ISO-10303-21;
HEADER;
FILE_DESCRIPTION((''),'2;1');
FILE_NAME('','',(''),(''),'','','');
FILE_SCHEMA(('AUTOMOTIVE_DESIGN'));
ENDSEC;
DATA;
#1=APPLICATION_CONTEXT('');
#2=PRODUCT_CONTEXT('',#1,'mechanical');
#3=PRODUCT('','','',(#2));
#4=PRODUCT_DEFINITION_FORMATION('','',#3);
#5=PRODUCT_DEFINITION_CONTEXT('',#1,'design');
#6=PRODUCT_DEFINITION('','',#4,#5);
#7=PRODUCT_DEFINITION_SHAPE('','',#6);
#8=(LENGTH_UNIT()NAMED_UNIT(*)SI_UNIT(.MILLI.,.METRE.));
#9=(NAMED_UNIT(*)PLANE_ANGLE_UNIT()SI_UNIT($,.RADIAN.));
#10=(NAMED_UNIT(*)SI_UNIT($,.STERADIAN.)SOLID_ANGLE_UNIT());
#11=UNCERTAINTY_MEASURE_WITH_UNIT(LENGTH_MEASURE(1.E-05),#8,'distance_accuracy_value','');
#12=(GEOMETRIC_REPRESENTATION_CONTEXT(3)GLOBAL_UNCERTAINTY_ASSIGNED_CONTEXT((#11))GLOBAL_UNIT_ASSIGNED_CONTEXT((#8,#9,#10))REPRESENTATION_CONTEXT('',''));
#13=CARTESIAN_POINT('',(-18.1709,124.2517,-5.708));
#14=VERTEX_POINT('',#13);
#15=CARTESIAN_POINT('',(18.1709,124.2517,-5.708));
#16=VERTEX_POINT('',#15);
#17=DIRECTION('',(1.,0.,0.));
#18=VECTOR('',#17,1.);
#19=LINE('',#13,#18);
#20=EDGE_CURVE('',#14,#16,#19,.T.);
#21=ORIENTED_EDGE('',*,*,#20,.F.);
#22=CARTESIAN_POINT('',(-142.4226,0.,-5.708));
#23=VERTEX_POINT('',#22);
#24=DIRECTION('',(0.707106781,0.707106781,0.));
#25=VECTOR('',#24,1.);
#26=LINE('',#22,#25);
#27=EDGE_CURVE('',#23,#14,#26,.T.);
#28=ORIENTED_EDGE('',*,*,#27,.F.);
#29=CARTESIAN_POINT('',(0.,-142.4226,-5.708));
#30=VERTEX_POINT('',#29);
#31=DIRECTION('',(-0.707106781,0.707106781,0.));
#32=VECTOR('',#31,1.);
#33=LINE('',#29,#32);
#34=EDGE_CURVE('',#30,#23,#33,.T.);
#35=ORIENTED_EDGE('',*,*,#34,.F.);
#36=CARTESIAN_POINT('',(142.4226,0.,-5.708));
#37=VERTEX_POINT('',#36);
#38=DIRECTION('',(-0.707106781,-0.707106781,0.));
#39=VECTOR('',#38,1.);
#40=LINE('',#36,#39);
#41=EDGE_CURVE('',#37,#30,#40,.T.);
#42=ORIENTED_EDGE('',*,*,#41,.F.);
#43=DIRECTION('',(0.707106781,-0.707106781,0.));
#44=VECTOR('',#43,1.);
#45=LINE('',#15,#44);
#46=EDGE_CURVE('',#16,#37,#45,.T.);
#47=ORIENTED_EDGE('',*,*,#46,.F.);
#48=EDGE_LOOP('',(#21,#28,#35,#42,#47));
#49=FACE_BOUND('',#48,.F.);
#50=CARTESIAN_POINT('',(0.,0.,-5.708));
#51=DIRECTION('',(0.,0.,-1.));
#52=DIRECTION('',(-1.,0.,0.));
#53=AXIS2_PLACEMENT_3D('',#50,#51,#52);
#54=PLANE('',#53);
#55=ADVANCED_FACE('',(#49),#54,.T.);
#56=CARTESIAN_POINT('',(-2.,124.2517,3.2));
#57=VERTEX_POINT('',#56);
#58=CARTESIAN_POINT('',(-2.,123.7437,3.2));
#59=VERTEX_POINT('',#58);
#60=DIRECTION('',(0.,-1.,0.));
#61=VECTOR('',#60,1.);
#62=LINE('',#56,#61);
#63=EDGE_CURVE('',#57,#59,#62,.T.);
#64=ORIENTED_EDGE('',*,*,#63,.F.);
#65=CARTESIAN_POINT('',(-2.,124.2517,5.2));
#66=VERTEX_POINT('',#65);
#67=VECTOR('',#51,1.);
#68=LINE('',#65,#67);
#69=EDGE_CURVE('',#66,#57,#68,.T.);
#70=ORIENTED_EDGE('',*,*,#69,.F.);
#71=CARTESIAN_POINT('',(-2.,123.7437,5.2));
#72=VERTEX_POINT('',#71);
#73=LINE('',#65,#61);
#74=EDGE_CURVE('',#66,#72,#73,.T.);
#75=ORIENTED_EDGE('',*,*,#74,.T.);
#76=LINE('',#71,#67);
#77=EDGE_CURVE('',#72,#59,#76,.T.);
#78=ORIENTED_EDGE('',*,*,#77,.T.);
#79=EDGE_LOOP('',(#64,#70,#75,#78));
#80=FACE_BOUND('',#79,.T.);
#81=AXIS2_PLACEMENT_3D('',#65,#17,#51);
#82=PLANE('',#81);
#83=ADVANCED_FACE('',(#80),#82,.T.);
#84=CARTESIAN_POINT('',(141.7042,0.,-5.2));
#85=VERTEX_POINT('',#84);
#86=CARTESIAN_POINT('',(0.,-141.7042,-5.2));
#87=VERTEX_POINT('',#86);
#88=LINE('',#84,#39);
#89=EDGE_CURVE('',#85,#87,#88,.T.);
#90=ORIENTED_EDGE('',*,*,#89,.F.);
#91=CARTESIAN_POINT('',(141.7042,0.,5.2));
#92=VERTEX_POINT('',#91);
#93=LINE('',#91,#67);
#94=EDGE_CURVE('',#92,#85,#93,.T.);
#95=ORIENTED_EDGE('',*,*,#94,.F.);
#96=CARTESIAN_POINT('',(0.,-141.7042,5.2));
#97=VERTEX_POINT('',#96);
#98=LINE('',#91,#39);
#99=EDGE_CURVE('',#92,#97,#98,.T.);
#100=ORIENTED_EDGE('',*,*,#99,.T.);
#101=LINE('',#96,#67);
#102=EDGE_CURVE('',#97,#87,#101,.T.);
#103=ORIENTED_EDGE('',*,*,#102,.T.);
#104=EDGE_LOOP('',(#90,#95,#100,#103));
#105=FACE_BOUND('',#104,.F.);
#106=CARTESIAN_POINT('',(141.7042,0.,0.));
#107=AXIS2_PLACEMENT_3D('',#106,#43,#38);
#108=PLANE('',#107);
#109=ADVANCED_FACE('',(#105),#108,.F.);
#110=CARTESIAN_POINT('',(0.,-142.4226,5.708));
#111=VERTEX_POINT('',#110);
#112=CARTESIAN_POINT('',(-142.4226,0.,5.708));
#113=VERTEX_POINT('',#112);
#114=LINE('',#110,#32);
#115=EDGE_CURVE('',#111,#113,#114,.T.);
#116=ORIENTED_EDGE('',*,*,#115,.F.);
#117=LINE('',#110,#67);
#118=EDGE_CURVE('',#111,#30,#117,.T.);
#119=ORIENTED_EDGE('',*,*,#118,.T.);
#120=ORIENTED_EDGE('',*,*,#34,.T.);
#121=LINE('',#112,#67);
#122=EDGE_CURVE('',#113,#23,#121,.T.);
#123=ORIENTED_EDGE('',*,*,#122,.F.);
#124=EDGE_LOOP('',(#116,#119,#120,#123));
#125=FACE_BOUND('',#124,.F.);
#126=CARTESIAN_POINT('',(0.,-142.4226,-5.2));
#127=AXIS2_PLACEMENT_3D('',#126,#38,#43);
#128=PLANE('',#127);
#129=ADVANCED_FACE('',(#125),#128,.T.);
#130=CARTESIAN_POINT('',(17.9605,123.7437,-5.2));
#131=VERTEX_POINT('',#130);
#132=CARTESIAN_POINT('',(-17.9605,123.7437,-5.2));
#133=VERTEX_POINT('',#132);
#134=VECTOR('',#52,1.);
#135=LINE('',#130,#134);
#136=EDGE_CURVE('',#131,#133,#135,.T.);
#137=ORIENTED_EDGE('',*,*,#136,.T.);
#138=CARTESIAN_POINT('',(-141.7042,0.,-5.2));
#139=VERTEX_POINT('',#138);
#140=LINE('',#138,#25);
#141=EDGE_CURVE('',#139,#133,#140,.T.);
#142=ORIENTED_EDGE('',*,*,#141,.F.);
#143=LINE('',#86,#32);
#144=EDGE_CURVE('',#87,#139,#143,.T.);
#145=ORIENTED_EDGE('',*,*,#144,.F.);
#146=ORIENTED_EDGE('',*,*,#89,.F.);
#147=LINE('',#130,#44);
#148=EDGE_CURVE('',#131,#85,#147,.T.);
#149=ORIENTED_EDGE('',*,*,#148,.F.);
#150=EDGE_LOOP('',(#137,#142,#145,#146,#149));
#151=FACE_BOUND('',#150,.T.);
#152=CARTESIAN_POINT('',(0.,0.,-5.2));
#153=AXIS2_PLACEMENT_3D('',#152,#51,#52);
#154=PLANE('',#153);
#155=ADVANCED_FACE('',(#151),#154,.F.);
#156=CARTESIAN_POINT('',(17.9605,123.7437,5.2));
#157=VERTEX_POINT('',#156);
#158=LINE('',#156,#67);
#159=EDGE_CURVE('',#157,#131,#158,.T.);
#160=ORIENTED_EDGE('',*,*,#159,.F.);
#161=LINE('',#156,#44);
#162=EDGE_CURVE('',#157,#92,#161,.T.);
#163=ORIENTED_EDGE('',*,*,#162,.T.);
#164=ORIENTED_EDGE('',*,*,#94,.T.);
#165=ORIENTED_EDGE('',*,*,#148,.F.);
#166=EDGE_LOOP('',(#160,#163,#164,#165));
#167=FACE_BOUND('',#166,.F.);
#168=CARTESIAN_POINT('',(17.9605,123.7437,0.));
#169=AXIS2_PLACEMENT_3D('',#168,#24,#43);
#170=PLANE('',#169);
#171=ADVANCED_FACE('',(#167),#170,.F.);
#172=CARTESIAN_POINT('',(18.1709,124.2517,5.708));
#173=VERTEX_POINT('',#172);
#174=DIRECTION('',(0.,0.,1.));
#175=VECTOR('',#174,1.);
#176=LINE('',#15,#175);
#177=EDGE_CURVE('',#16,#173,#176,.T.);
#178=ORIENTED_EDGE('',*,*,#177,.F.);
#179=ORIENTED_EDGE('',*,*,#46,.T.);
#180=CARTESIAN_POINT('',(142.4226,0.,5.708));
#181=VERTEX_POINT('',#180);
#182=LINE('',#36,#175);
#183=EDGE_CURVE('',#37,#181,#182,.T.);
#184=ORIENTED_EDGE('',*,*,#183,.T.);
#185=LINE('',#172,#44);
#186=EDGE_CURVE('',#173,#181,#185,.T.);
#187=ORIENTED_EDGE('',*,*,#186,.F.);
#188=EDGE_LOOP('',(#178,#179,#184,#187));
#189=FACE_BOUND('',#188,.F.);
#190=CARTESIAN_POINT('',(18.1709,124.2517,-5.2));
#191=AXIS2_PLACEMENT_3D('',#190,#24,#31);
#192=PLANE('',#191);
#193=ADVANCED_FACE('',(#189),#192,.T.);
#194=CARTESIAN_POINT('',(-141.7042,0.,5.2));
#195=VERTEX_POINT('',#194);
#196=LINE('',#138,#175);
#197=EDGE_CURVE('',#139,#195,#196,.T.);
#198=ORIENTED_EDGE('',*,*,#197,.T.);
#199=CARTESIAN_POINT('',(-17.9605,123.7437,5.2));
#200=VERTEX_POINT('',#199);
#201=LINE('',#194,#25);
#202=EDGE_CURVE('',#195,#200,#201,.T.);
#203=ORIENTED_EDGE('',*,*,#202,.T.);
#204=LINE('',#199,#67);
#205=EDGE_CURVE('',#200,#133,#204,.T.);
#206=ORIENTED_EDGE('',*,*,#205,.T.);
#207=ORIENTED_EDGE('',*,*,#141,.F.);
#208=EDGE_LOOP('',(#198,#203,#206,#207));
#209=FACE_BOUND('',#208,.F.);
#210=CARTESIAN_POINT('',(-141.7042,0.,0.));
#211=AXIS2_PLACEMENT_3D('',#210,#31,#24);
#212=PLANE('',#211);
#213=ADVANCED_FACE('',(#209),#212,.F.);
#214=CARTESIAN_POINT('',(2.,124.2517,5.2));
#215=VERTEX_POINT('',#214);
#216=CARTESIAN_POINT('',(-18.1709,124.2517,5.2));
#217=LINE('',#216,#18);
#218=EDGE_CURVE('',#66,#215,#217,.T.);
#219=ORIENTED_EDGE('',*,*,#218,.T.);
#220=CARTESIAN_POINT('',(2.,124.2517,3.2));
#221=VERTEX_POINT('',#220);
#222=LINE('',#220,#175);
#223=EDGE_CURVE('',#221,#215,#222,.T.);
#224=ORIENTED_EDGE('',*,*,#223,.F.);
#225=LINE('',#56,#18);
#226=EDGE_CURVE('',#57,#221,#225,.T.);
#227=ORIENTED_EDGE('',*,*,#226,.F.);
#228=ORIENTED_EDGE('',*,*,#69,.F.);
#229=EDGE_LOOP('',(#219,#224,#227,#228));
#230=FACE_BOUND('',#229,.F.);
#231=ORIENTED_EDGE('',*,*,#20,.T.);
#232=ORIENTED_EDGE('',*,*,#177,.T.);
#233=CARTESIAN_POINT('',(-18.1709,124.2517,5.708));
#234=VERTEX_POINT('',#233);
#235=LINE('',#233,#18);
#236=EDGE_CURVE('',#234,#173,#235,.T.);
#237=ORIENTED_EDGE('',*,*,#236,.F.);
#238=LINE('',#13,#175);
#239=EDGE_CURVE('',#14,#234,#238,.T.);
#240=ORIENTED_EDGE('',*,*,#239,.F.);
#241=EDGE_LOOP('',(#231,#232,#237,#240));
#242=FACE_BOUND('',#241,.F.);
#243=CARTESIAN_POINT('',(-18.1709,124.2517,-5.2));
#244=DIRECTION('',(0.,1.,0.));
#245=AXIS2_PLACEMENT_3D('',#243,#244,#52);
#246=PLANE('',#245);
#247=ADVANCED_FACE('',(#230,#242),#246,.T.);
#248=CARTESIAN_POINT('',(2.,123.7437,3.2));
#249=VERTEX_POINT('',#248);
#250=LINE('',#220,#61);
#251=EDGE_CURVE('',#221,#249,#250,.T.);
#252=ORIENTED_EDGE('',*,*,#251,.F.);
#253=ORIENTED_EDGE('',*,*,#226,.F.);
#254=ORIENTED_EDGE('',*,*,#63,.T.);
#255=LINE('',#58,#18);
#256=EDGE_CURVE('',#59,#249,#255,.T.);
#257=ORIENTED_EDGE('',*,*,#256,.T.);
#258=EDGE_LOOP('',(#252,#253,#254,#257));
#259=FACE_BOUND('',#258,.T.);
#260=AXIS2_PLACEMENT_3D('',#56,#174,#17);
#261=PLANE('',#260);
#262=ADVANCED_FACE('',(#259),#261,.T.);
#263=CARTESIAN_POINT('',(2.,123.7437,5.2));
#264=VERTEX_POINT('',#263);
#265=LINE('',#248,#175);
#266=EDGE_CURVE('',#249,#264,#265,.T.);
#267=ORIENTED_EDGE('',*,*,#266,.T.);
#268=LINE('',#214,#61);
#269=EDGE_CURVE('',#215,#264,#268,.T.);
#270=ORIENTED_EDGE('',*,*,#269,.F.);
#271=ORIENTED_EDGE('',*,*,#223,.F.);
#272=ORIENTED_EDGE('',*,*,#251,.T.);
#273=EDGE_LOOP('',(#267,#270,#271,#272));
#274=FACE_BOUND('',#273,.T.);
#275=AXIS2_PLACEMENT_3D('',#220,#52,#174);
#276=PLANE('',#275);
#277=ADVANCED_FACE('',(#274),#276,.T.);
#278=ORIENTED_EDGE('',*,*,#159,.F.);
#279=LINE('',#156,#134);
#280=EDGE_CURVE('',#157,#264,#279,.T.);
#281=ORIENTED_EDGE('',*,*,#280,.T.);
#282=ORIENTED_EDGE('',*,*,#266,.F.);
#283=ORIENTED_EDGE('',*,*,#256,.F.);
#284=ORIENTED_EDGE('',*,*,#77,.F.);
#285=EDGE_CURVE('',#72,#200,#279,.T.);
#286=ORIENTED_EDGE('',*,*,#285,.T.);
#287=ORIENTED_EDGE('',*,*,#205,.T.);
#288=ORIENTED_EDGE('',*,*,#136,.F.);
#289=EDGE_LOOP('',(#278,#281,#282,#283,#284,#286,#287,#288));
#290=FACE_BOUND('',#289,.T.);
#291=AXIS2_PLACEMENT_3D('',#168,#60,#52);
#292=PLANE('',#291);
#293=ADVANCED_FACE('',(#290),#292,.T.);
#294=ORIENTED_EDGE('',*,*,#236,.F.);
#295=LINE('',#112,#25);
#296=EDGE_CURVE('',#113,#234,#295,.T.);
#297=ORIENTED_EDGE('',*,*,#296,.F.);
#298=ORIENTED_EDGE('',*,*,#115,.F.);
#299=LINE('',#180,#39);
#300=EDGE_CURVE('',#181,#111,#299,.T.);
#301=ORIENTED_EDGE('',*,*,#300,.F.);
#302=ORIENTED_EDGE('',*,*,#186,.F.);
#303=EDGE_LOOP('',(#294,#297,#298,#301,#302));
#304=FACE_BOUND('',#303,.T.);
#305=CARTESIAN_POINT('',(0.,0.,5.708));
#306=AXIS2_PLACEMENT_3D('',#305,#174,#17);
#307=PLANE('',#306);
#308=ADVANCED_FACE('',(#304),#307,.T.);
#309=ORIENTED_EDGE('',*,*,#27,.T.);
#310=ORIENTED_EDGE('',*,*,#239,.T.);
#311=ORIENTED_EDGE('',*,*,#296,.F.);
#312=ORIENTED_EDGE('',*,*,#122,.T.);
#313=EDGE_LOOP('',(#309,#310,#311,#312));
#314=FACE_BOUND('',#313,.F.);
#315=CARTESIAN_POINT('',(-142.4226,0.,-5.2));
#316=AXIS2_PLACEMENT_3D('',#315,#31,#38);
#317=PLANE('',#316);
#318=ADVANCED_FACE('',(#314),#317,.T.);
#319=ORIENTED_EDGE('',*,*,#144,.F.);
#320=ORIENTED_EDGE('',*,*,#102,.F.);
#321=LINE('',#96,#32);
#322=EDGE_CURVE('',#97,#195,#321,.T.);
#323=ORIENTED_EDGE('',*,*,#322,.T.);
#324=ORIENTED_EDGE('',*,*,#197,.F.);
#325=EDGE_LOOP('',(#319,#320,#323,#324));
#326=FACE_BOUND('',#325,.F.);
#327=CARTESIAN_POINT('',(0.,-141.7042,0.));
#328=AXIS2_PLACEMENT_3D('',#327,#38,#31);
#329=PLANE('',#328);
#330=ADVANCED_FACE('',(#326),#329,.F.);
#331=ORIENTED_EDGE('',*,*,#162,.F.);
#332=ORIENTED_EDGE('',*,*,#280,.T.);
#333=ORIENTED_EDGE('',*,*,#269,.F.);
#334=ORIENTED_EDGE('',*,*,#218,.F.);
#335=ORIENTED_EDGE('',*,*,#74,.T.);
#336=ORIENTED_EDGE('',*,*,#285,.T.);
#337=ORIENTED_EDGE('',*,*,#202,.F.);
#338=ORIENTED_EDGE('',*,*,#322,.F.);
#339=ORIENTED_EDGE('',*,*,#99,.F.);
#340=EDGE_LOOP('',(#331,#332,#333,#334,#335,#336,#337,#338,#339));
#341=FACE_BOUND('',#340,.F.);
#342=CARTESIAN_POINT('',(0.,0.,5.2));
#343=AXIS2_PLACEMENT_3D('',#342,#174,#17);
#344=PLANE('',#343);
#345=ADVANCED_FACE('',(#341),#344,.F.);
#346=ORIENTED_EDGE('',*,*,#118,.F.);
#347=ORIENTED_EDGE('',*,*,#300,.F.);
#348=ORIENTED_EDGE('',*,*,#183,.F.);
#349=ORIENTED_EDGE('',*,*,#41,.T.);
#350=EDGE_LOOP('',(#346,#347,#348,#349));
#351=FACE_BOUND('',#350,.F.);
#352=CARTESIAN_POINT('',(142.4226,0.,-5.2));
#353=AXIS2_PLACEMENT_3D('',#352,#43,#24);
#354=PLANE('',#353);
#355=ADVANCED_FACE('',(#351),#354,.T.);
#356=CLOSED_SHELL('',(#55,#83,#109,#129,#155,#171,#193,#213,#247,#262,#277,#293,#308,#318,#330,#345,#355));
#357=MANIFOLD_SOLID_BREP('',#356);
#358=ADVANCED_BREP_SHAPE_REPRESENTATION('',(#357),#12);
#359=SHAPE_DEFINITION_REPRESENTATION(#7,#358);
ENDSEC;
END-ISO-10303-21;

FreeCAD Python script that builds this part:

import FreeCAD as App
import Part
import Sketcher
Q = App.Units.Quantity


def add_polygon(sketch, points):
    """Adds a closed chain of lines whose ends are joined by coincident constraints."""
    first, n = sketch.GeometryCount, len(points)
    for a, b in zip(points, points[1:] + points[:1]):
        sketch.addGeometry(Part.LineSegment(App.Vector(*a, 0), App.Vector(*b, 0)), False)
    for i in range(n):
        sketch.addConstraint(Sketcher.Constraint("Coincident", first + i, 2, first + (i + 1) % n, 1))

doc = App.newDocument("Part")
body = doc.addObject("PartDesign::Body", "Body")

# Sketch on XY plane
sketch1 = body.newObject("Sketcher::SketchObject", "Sketch")
sketch1.AttachmentSupport = (doc.getObject("XY_Plane"), [""])
sketch1.MapMode = "FlatFace"
add_polygon(sketch1, [(18.1709, 124.2517), (-18.1709, 124.2517), (-142.4226, 0), (0, -142.4226), (142.4226, 0)])  # lines 0-4
add_polygon(sketch1, [(0, -141.7042), (-141.7042, 0), (-17.9605, 123.7437), (17.9605, 123.7437), (141.7042, 0)])  # lines 5-9
sketch1.addConstraint(Sketcher.Constraint("Horizontal", 0))
sketch1.addConstraint(Sketcher.Constraint("Horizontal", 7))
sketch1.addConstraint(Sketcher.Constraint("Symmetric", 1, 2, 3, 2, -1, 1))
sketch1.addConstraint(Sketcher.Constraint("Symmetric", 5, 2, 8, 2, -1, 1))
sketch1.addConstraint(Sketcher.Constraint("PointOnObject", 1, 2, -1))
sketch1.addConstraint(Sketcher.Constraint("PointOnObject", 2, 2, -2))
sketch1.addConstraint(Sketcher.Constraint("PointOnObject", 5, 2, -1))
sketch1.addConstraint(Sketcher.Constraint("PointOnObject", 9, 2, -2))
sketch1.addConstraint(Sketcher.Constraint("Perpendicular", 1, 2))
sketch1.addConstraint(Sketcher.Constraint("Perpendicular", 2, 3))
sketch1.addConstraint(Sketcher.Constraint("Perpendicular", 3, 4))
sketch1.addConstraint(Sketcher.Constraint("Parallel", 4, 5))
sketch1.addConstraint(Sketcher.Constraint("Perpendicular", 5, 6))
sketch1.addConstraint(Sketcher.Constraint("Perpendicular", 6, 8))
sketch1.addConstraint(Sketcher.Constraint("Distance", 5, Q("200.4 mm")))
sketch1.addConstraint(Sketcher.Constraint("Distance", 6, Q("175 mm")))
sketch1.addConstraint(Sketcher.Constraint("DistanceY", 6, 2, 0, 2, Q("0.508 mm")))
sketch1.addConstraint(Sketcher.Constraint("Distance", 2, Q("201.416 mm")))
pad1 = body.newObject("PartDesign::Pad", "Pad")
pad1.Profile = sketch1
pad1.Length = 10.4
pad1.Midplane = True

# Sketch on XZ plane
sketch2 = body.newObject("Sketcher::SketchObject", "Sketch001")
sketch2.AttachmentSupport = (doc.getObject("XZ_Plane"), [""])
sketch2.MapMode = "FlatFace"
sketch2.AttachmentOffset = App.Placement(App.Vector(0, 0, -124.2517), App.Rotation())
add_polygon(sketch2, [(-2, 5.2), (2, 5.2), (2, 3.2), (-2, 3.2)])  # lines 0-3
sketch2.addConstraint(Sketcher.Constraint("Horizontal", 0))
sketch2.addConstraint(Sketcher.Constraint("Vertical", 1))
sketch2.addConstraint(Sketcher.Constraint("Horizontal", 2))
sketch2.addConstraint(Sketcher.Constraint("Vertical", 3))
sketch2.addConstraint(Sketcher.Constraint("DistanceX", 0, 1, 0, 2, Q("4 mm")))
sketch2.addConstraint(Sketcher.Constraint("DistanceY", 1, 2, 1, 1, Q("2 mm")))
sketch2.addConstraint(Sketcher.Constraint("DistanceX", -1, 1, 0, 2, Q("2 mm")))
sketch2.addConstraint(Sketcher.Constraint("DistanceY", -1, 1, 0, 2, Q("5.2 mm")))
pocket1 = body.newObject("PartDesign::Pocket", "Pocket")
pocket1.Profile = sketch2
pocket1.Length = 0.508
pocket1.Reversed = True

# Sketch on XY plane
sketch3 = body.newObject("Sketcher::SketchObject", "Sketch002")
sketch3.AttachmentSupport = (doc.getObject("XY_Plane"), [""])
sketch3.MapMode = "FlatFace"
sketch3.AttachmentOffset = App.Placement(App.Vector(0, 0, 5.2), App.Rotation())
add_polygon(sketch3, [(0, -142.4226), (142.4226, 0), (18.1709, 124.2517), (-18.1709, 124.2517), (-142.4226, 0)])  # lines 0-4
sketch3.addConstraint(Sketcher.Constraint("Horizontal", 2))
sketch3.addConstraint(Sketcher.Constraint("Symmetric", 0, 2, 3, 2, -1, 1))
sketch3.addConstraint(Sketcher.Constraint("PointOnObject", 0, 2, -1))
sketch3.addConstraint(Sketcher.Constraint("PointOnObject", 4, 2, -2))
sketch3.addConstraint(Sketcher.Constraint("Perpendicular", 0, 1))
sketch3.addConstraint(Sketcher.Constraint("Perpendicular", 1, 3))
sketch3.addConstraint(Sketcher.Constraint("Perpendicular", 3, 4))
sketch3.addConstraint(Sketcher.Constraint("Distance", 0, Q("201.416 mm")))
sketch3.addConstraint(Sketcher.Constraint("DistanceX", 2, 2, 2, 1, Q("36.3418 mm")))
pad2 = body.newObject("PartDesign::Pad", "Pad001")
pad2.Profile = sketch3
pad2.Length = 0.508
doc.recompute()

mirrored = body.newObject("PartDesign::Mirrored", "Mirrored")
mirrored.Originals = [pad2]
mirrored.MirrorPlane = (doc.getObject("XY_Plane"), [""])
body.Tip = mirrored

doc.recompute()
